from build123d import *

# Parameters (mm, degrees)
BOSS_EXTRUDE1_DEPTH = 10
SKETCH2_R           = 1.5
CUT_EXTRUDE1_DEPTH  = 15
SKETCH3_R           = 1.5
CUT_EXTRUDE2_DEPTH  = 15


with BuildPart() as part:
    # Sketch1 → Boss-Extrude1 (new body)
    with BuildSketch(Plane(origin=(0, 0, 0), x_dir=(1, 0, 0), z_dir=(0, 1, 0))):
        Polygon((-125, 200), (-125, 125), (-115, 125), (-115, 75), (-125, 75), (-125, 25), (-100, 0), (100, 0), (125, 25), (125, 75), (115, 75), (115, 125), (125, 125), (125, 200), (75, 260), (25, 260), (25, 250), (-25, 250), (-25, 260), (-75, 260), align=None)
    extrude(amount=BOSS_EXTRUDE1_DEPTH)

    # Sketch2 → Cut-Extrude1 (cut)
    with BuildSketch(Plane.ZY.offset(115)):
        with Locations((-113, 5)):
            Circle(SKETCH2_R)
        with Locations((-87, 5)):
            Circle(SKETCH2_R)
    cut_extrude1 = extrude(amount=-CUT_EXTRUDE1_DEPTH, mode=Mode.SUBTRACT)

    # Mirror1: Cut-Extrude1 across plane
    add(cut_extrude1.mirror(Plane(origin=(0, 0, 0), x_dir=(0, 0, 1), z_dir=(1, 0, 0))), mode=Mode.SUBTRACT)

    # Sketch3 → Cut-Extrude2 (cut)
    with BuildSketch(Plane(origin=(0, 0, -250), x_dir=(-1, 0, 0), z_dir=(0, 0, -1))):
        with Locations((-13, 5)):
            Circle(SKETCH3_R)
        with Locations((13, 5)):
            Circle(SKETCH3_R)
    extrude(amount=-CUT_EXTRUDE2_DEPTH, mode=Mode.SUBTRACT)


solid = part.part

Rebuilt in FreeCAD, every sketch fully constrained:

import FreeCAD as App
import Part
import Sketcher

V = App.Vector
Q = App.Units.Quantity


def add_polygon(sketch, points):
    """Adds a closed chain of lines whose ends are joined by coincident constraints."""
    first, n = sketch.GeometryCount, len(points)
    for a, b in zip(points, points[1:] + points[:1]):
        sketch.addGeometry(Part.LineSegment(App.Vector(*a, 0), App.Vector(*b, 0)), False)
    for i in range(n):
        sketch.addConstraint(Sketcher.Constraint("Coincident", first + i, 2, first + (i + 1) % n, 1))

doc = App.newDocument("Part")
body = doc.addObject("PartDesign::Body", "Body")

# Sketch on XZ plane
sketch1 = body.newObject("Sketcher::SketchObject", "Sketch")
sketch1.AttachmentSupport = (doc.getObject("XZ_Plane"), [""])
sketch1.MapMode = "FlatFace"
add_polygon(sketch1, [(-125, -200), (-125, -125), (-115, -125), (-115, -75), (-125, -75), (-125, -25), (-100, 0), (100, 0), (125, -25), (125, -75), (115, -75), (115, -125), (125, -125), (125, -200), (75, -260), (25, -260), (25, -250), (-25, -250), (-25, -260), (-75, -260)])  # lines 0-19
sketch1.addConstraint([
    Sketcher.Constraint("Vertical", 0),
    Sketcher.Constraint("Horizontal", 1),
    Sketcher.Constraint("Vertical", 2),
    Sketcher.Constraint("Horizontal", 3),
    Sketcher.Constraint("Vertical", 4),
    Sketcher.Constraint("Horizontal", 6),
    Sketcher.Constraint("Vertical", 8),
    Sketcher.Constraint("Horizontal", 9),
    Sketcher.Constraint("Vertical", 10),
    Sketcher.Constraint("Horizontal", 11),
    Sketcher.Constraint("Vertical", 12),
    Sketcher.Constraint("Horizontal", 14),
    Sketcher.Constraint("Vertical", 15),
    Sketcher.Constraint("Horizontal", 16),
    Sketcher.Constraint("Vertical", 17),
    Sketcher.Constraint("Horizontal", 18),
    Sketcher.Constraint("Symmetric", 5, 2, 6, 2, -1, 1),
    Sketcher.Constraint("Symmetric", 4, 2, 7, 2, -2),
    Sketcher.Constraint("Symmetric", 2, 2, 9, 2, -2),
    Sketcher.Constraint("Symmetric", 0, 2, 11, 2, -2),
    Sketcher.Constraint("Symmetric", 14, 2, 17, 2, -2),
    Sketcher.Constraint("Perpendicular", 5, 7),
    Sketcher.Constraint("Horizontal", 12, 2, 19, 2),
    Sketcher.Constraint("Vertical", 0, 2, 3, 2),
    Sketcher.Constraint("Equal", 14, 16),
    Sketcher.Constraint("Equal", 16, 18),
    Sketcher.Constraint("Equal", 18, 2),
    Sketcher.Constraint("Equal", 2, 4),
    Sketcher.Constraint("Equal", 11, 15),
    Sketcher.Constraint("DistanceX", 1, 1, 1, 2, Q("10 mm")),
    Sketcher.Constraint("DistanceX", 6, 1, 6, 2, Q("200 mm")),
    Sketcher.Constraint("DistanceX", 14, 2, 14, 1, Q("50 mm")),
    Sketcher.Constraint("DistanceY", 0, 1, 0, 2, Q("75 mm")),
    Sketcher.Constraint("DistanceX", 0, 2, -1, 1, Q("125 mm")),
    Sketcher.Constraint("DistanceY", 13, 2, -1, 1, Q("260 mm")),
])
pad1 = body.newObject("PartDesign::Pad", "Pad")
pad1.Profile = sketch1
pad1.Length = 10
pad1.Reversed = True

# Sketch on YZ plane
sketch2 = body.newObject("Sketcher::SketchObject", "Sketch001")
sketch2.AttachmentSupport = (doc.getObject("YZ_Plane"), [""])
sketch2.MapMode = "FlatFace"
sketch2.AttachmentOffset = App.Placement(V(0, 0, -115), App.Rotation())
sketch2.addGeometry([
    Part.Circle(V(5, -113, 0), V(0, 0, 1), 1.5),
    Part.Circle(V(5, -87, 0), V(0, 0, 1), 1.5),
], False)
sketch2.addConstraint([
    Sketcher.Constraint("Equal", 0, 1),
    Sketcher.Constraint("Vertical", 0, 3, 1, 3),
    Sketcher.Constraint("Diameter", 0, Q("3 mm")),
    Sketcher.Constraint("DistanceX", -1, 1, 0, 3, Q("5 mm")),
    Sketcher.Constraint("DistanceY", 0, 3, -1, 1, Q("113 mm")),
    Sketcher.Constraint("DistanceY", 1, 3, -1, 1, Q("87 mm")),
])
pocket1 = body.newObject("PartDesign::Pocket", "Pocket")
pocket1.Profile = sketch2
pocket1.Length = 15
pocket1.Reversed = True
doc.recompute()

mirrored = body.newObject("PartDesign::Mirrored", "Mirrored")
mirrored.Originals = [pocket1]
mirrored.MirrorPlane = (doc.getObject("YZ_Plane"), [""])
body.Tip = mirrored

# Sketch on XY plane
sketch3 = body.newObject("Sketcher::SketchObject", "Sketch002")
sketch3.AttachmentSupport = (doc.getObject("XY_Plane"), [""])
sketch3.MapMode = "FlatFace"
sketch3.AttachmentOffset = App.Placement(V(0, 0, -250), App.Rotation())
sketch3.addGeometry([
    Part.Circle(V(13, 5, 0), V(0, 0, 1), 1.5),
    Part.Circle(V(-13, 5, 0), V(0, 0, 1), 1.5),
], False)
sketch3.addConstraint([
    Sketcher.Constraint("Equal", 0, 1),
    Sketcher.Constraint("Symmetric", 0, 3, 1, 3, -2),
    Sketcher.Constraint("Diameter", 0, Q("3 mm")),
    Sketcher.Constraint("DistanceX", -1, 1, 0, 3, Q("13 mm")),
    Sketcher.Constraint("DistanceY", -1, 1, 0, 3, Q("5 mm")),
])
pocket2 = body.newObject("PartDesign::Pocket", "Pocket001")
pocket2.Profile = sketch3
pocket2.Length = 15
pocket2.Reversed = True

doc.recompute()
